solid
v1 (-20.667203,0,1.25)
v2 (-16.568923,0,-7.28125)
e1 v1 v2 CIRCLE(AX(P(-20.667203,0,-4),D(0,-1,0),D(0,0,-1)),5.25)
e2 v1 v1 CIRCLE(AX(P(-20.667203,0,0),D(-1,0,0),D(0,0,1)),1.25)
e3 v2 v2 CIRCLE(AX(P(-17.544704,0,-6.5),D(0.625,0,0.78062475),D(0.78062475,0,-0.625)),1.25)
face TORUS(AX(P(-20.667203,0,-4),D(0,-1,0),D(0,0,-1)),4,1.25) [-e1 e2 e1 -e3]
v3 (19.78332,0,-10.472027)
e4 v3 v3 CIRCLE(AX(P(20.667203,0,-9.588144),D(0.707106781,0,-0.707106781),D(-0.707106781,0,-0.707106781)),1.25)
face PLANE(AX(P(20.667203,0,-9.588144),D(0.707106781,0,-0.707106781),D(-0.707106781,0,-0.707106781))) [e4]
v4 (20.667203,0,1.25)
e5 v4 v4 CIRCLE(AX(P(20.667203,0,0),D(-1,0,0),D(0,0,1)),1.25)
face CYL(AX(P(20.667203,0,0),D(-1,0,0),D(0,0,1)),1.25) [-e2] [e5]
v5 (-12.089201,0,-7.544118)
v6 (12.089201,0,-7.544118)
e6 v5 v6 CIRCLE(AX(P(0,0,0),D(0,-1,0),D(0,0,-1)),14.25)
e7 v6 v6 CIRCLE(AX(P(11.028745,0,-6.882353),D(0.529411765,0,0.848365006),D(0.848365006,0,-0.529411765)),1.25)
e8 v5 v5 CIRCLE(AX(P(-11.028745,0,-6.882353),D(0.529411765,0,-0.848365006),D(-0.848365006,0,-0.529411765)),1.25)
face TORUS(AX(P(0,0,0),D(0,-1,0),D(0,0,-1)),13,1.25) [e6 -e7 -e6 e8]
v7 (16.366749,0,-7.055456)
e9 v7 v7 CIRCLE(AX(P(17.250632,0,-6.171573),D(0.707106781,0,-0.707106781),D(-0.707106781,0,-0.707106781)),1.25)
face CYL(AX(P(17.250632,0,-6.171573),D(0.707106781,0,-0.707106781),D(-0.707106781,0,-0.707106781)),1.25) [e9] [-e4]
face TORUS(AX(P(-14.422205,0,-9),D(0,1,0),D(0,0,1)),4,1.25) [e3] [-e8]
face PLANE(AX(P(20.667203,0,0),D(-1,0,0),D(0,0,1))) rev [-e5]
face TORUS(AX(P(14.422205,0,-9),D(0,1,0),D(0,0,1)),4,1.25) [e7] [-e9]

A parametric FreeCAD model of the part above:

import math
import FreeCAD as App
import Part
import Sketcher

V = App.Vector
Q = App.Units.Quantity

doc = App.newDocument("Part")
params = doc.addObject("Spreadsheet::Sheet", "Params")
for row, (alias, value) in enumerate([
    ("sketch1_diameter", "2.5 mm"),
    ("sketch2_radius", "4 mm"),
    ("sketch2_radius2", "13 mm"),
], start=1):
    params.set(f"A{row}", alias)
    params.set(f"B{row}", "=" + value)
    params.setAlias(f"B{row}", alias)

body = doc.addObject("PartDesign::Body", "Body")

sketch1 = doc.addObject("Sketcher::SketchObject", "Sketch")
body.addObject(sketch1)
sketch1.AttachmentSupport = (doc.YZ_Plane, [""])
sketch1.MapMode = "FlatFace"
sketch1.AttachmentOffset = App.Placement(V(0, 0, 20.667203), App.Rotation())
sketch1.addGeometry(Part.Circle(V(0, 0, 0), V(0, 0, 1), 1.2), False)
sketch1.addConstraint(Sketcher.Constraint("Coincident", 0, 3, -1, 1))
sketch1.addConstraint(Sketcher.Constraint("Diameter", 0, Q("2.5 mm")))
sketch1.setExpression("Constraints[1]", "Params.sketch1_diameter")

sketch2 = doc.addObject("Sketcher::SketchObject", "Sketch001")
body.addObject(sketch2)
sketch2.AttachmentSupport = (doc.XZ_Plane, [""])
sketch2.MapMode = "FlatFace"
sketch2.addGeometry(Part.LineSegment(V(20.7, 0, 0), V(-20.7, 0, 0)), False)
sketch2.addGeometry(Part.ArcOfCircle(Part.Circle(V(-20.7, -4, 0), V(0, 0, 1), 4), math.radians(90), math.radians(321)), False)
sketch2.addGeometry(Part.ArcOfCircle(Part.Circle(V(-14.4, -9, 0), V(0, 0, 1), 4), math.radians(32), math.radians(141)), False)
sketch2.addGeometry(Part.ArcOfCircle(Part.Circle(V(0, 0, 0), V(0, 0, 1), 13), math.radians(-148), math.radians(-32)), False)
sketch2.addGeometry(Part.ArcOfCircle(Part.Circle(V(14.4, -9, 0), V(0, 0, 1), 4), math.radians(45), math.radians(148)), False)
sketch2.addGeometry(Part.LineSegment(V(17.3, -6.2, 0), V(20.7, -9.6, 0)), False)
sketch2.addConstraint(Sketcher.Constraint("Tangent", 0, 2, 1, 1))
sketch2.addConstraint(Sketcher.Constraint("Tangent", 1, 2, 2, 2))
sketch2.addConstraint(Sketcher.Constraint("Tangent", 2, 1, 3, 1))
sketch2.addConstraint(Sketcher.Constraint("Tangent", 3, 2, 4, 2))
sketch2.addConstraint(Sketcher.Constraint("Tangent", 4, 1, 5, 1))
sketch2.addConstraint(Sketcher.Constraint("Horizontal", 0))
sketch2.addConstraint(Sketcher.Constraint("Coincident", 3, 3, -1, 1))
sketch2.addConstraint(Sketcher.Constraint("Equal", 1, 2))
sketch2.addConstraint(Sketcher.Constraint("Equal", 2, 4))
sketch2.addConstraint(Sketcher.Constraint("Symmetric", 0, 1, 0, 2, -1, 1))
sketch2.addConstraint(Sketcher.Constraint("Horizontal", 2, 3, 4, 3))
sketch2.addConstraint(Sketcher.Constraint("Vertical", 0, 1, 5, 2))
sketch2.addConstraint(Sketcher.Constraint("Radius", 1, Q("4 mm")))
sketch2.addConstraint(Sketcher.Constraint("Radius", 3, Q("13 mm")))
sketch2.addConstraint(Sketcher.Constraint("Angle", 5, Q("-45 deg")))
sketch2.addConstraint(Sketcher.Constraint("DistanceY", 2, 3, -1, 1, Q("9 mm")))
sketch2.setExpression("Constraints[12]", "Params.sketch2_radius")
sketch2.setExpression("Constraints[13]", "Params.sketch2_radius2")
doc.recompute()

additivepipe = doc.addObject("PartDesign::AdditivePipe", "AdditivePipe")
body.addObject(additivepipe)
additivepipe.Profile = sketch1
additivepipe.Spine = (sketch2, ["Edge1", "Edge2", "Edge3", "Edge4", "Edge5", "Edge6"])

doc.recompute()
